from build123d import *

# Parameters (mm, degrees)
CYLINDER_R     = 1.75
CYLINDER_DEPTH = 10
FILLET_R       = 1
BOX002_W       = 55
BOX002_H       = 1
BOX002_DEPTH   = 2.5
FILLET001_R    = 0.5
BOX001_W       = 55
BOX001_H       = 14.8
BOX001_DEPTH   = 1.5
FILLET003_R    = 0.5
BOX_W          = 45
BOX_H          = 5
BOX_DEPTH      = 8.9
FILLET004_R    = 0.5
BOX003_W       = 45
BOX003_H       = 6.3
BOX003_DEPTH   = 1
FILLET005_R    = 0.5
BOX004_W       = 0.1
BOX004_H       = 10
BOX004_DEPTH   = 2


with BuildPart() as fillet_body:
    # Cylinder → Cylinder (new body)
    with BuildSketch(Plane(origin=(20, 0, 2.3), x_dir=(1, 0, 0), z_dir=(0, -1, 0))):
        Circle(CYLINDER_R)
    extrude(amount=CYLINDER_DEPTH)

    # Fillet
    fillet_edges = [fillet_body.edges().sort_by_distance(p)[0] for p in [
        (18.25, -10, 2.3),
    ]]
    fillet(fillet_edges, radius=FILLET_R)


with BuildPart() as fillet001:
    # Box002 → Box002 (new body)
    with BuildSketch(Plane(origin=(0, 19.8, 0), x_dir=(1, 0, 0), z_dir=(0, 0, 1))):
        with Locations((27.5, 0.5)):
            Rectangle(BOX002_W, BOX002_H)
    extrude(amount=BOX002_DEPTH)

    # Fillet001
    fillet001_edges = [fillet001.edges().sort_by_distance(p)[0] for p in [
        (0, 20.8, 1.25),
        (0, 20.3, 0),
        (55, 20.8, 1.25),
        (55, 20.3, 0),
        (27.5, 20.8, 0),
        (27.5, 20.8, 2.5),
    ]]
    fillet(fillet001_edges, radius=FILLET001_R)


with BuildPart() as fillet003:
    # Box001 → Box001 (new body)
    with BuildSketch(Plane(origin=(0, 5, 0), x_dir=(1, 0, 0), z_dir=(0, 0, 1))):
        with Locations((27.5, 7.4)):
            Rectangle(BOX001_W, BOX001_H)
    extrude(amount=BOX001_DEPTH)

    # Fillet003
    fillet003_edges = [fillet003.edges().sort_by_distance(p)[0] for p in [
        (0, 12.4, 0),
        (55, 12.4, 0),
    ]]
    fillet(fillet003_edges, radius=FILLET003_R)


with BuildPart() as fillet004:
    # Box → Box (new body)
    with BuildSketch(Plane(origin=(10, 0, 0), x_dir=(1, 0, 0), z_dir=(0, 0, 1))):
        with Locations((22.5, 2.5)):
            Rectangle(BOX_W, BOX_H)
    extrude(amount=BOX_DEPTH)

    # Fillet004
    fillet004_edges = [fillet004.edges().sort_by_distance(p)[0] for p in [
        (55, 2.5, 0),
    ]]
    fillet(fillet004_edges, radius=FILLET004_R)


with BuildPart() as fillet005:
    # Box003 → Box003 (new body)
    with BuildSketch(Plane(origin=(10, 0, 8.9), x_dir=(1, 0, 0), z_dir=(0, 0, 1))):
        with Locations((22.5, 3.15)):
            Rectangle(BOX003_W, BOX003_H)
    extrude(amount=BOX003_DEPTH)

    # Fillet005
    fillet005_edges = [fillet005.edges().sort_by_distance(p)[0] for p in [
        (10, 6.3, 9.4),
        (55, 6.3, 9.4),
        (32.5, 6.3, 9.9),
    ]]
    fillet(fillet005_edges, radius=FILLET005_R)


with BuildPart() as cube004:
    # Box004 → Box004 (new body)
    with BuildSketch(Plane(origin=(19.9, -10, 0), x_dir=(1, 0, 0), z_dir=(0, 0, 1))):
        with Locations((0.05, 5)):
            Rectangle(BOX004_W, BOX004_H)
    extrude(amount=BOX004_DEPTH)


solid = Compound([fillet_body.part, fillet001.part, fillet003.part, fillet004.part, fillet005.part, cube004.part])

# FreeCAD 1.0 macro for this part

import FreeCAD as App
import Part
import Sketcher
from FreeCAD import Vector
Q = App.Units.Quantity


def edges_at(feature, points):
    """Names of the edges that pass closest to the given points."""
    edges = feature.Shape.Edges
    near = lambda p: min(range(len(edges)), key=lambda i: edges[i].distToShape(Part.Vertex(*p))[0])
    return sorted({f"Edge{near(p) + 1}" for p in points})

doc = App.newDocument("Part")
body = doc.addObject("PartDesign::Body", "Body")

sketch1 = doc.addObject("Sketcher::SketchObject", "Sketch")
body.addObject(sketch1)
sketch1.AttachmentSupport = (doc.XZ_Plane, [""])
sketch1.MapMode = "FlatFace"
sketch1.addGeometry(Part.Circle(Vector(20, 2.3, 0), Vector(0, 0, 1), 1.8), False)
sketch1.addConstraint([
    Sketcher.Constraint("Diameter", 0, Q("3.5 mm")),
    Sketcher.Constraint("DistanceX", -1, 1, 0, 3, Q("20 mm")),
    Sketcher.Constraint("DistanceY", -1, 1, 0, 3, Q("2.3 mm")),
])
pad1 = doc.addObject("PartDesign::Pad", "Pad")
body.addObject(pad1)
pad1.Profile = sketch1
pad1.Length = 10
doc.recompute()

fillet = doc.addObject("PartDesign::Fillet", "Fillet")
body.addObject(fillet)
fillet.Base = (pad1, edges_at(pad1, [(18.25, -10, 2.3)]))
fillet.Radius = 1
body2 = doc.addObject("PartDesign::Body", "Body001")

sketch2 = doc.addObject("Sketcher::SketchObject", "Sketch001")
body2.addObject(sketch2)
sketch2.AttachmentSupport = (doc.getObject("XY_Plane001"), [""])
sketch2.MapMode = "FlatFace"
sketch2.addGeometry([
    Part.LineSegment(Vector(0, 20.8, 0), Vector(0, 19.8, 0)),
    Part.LineSegment(Vector(0, 19.8, 0), Vector(55, 19.8, 0)),
    Part.LineSegment(Vector(55, 19.8, 0), Vector(55, 20.8, 0)),
    Part.LineSegment(Vector(55, 20.8, 0), Vector(0, 20.8, 0)),
], False)
sketch2.addConstraint([
    Sketcher.Constraint("Coincident", 0, 2, 1, 1),
    Sketcher.Constraint("Coincident", 1, 2, 2, 1),
    Sketcher.Constraint("Coincident", 2, 2, 3, 1),
    Sketcher.Constraint("Coincident", 3, 2, 0, 1),
    Sketcher.Constraint("Vertical", 0),
    Sketcher.Constraint("Horizontal", 1),
    Sketcher.Constraint("Vertical", 2),
    Sketcher.Constraint("Horizontal", 3),
    Sketcher.Constraint("PointOnObject", 0, 2, -2),
    Sketcher.Constraint("DistanceX", 1, 1, 1, 2, Q("55 mm")),
    Sketcher.Constraint("DistanceY", 0, 2, 0, 1, Q("1 mm")),
    Sketcher.Constraint("DistanceY", -1, 1, 0, 2, Q("19.8 mm")),
])
pad2 = doc.addObject("PartDesign::Pad", "Pad001")
body2.addObject(pad2)
pad2.Profile = sketch2
pad2.Length = 2.5
doc.recompute()

fillet2 = doc.addObject("PartDesign::Fillet", "Fillet001")
body2.addObject(fillet2)
fillet2.Base = (pad2, edges_at(pad2, [
    (0, 20.8, 1.25),
    (0, 20.3, 0),
    (55, 20.8, 1.25),
    (55, 20.3, 0),
    (27.5, 20.8, 0),
    (27.5, 20.8, 2.5),
]))
fillet2.Radius = 0.5
body3 = doc.addObject("PartDesign::Body", "Body002")

sketch3 = doc.addObject("Sketcher::SketchObject", "Sketch002")
body3.addObject(sketch3)
sketch3.AttachmentSupport = (doc.getObject("XY_Plane002"), [""])
sketch3.MapMode = "FlatFace"
sketch3.addGeometry([
    Part.LineSegment(Vector(0, 20, 0), Vector(0, 5, 0)),
    Part.LineSegment(Vector(0, 5, 0), Vector(55, 5, 0)),
    Part.LineSegment(Vector(55, 5, 0), Vector(55, 20, 0)),
    Part.LineSegment(Vector(55, 20, 0), Vector(0, 20, 0)),
], False)
sketch3.addConstraint([
    Sketcher.Constraint("Coincident", 0, 2, 1, 1),
    Sketcher.Constraint("Coincident", 1, 2, 2, 1),
    Sketcher.Constraint("Coincident", 2, 2, 3, 1),
    Sketcher.Constraint("Coincident", 3, 2, 0, 1),
    Sketcher.Constraint("Vertical", 0),
    Sketcher.Constraint("Horizontal", 1),
    Sketcher.Constraint("Vertical", 2),
    Sketcher.Constraint("Horizontal", 3),
    Sketcher.Constraint("PointOnObject", 0, 2, -2),
    Sketcher.Constraint("DistanceX", 1, 1, 1, 2, Q("55 mm")),
    Sketcher.Constraint("DistanceY", 0, 2, 0, 1, Q("14.8 mm")),
    Sketcher.Constraint("DistanceY", -1, 1, 0, 2, Q("5 mm")),
])
pad3 = doc.addObject("PartDesign::Pad", "Pad002")
body3.addObject(pad3)
pad3.Profile = sketch3
pad3.Length = 1.5
doc.recompute()

fillet3 = doc.addObject("PartDesign::Fillet", "Fillet002")
body3.addObject(fillet3)
fillet3.Base = (pad3, edges_at(pad3, [(0, 12.4, 0), (55, 12.4, 0)]))
fillet3.Radius = 0.5
body4 = doc.addObject("PartDesign::Body", "Body003")

sketch4 = doc.addObject("Sketcher::SketchObject", "Sketch003")
body4.addObject(sketch4)
sketch4.AttachmentSupport = (doc.getObject("XY_Plane003"), [""])
sketch4.MapMode = "FlatFace"
sketch4.addGeometry([
    Part.LineSegment(Vector(10, 5, 0), Vector(10, 0, 0)),
    Part.LineSegment(Vector(10, 0, 0), Vector(55, 0, 0)),
    Part.LineSegment(Vector(55, 0, 0), Vector(55, 5, 0)),
    Part.LineSegment(Vector(55, 5, 0), Vector(10, 5, 0)),
], False)
sketch4.addConstraint([
    Sketcher.Constraint("Coincident", 0, 2, 1, 1),
    Sketcher.Constraint("Coincident", 1, 2, 2, 1),
    Sketcher.Constraint("Coincident", 2, 2, 3, 1),
    Sketcher.Constraint("Coincident", 3, 2, 0, 1),
    Sketcher.Constraint("Vertical", 0),
    Sketcher.Constraint("Horizontal", 1),
    Sketcher.Constraint("Vertical", 2),
    Sketcher.Constraint("Horizontal", 3),
    Sketcher.Constraint("PointOnObject", 0, 2, -1),
    Sketcher.Constraint("DistanceX", 1, 1, 1, 2, Q("45 mm")),
    Sketcher.Constraint("DistanceY", 0, 2, 0, 1, Q("5 mm")),
    Sketcher.Constraint("DistanceX", -1, 1, 0, 2, Q("10 mm")),
])
pad4 = doc.addObject("PartDesign::Pad", "Pad003")
body4.addObject(pad4)
pad4.Profile = sketch4
pad4.Length = 8.9
doc.recompute()

fillet4 = doc.addObject("PartDesign::Fillet", "Fillet003")
body4.addObject(fillet4)
fillet4.Base = (pad4, edges_at(pad4, [(55, 2.5, 0)]))
fillet4.Radius = 0.5
body5 = doc.addObject("PartDesign::Body", "Body004")

sketch5 = doc.addObject("Sketcher::SketchObject", "Sketch004")
body5.addObject(sketch5)
sketch5.AttachmentSupport = (doc.getObject("XY_Plane004"), [""])
sketch5.MapMode = "FlatFace"
sketch5.AttachmentOffset = App.Placement(Vector(0, 0, 8.9), App.Rotation())
sketch5.addGeometry([
    Part.LineSegment(Vector(10, 6, 0), Vector(10, 0, 0)),
    Part.LineSegment(Vector(10, 0, 0), Vector(55, 0, 0)),
    Part.LineSegment(Vector(55, 0, 0), Vector(55, 6, 0)),
    Part.LineSegment(Vector(55, 6, 0), Vector(10, 6, 0)),
], False)
sketch5.addConstraint([
    Sketcher.Constraint("Coincident", 0, 2, 1, 1),
    Sketcher.Constraint("Coincident", 1, 2, 2, 1),
    Sketcher.Constraint("Coincident", 2, 2, 3, 1),
    Sketcher.Constraint("Coincident", 3, 2, 0, 1),
    Sketcher.Constraint("Vertical", 0),
    Sketcher.Constraint("Horizontal", 1),
    Sketcher.Constraint("Vertical", 2),
    Sketcher.Constraint("Horizontal", 3),
    Sketcher.Constraint("PointOnObject", 0, 2, -1),
    Sketcher.Constraint("DistanceX", 1, 1, 1, 2, Q("45 mm")),
    Sketcher.Constraint("DistanceY", 0, 2, 0, 1, Q("6.3 mm")),
    Sketcher.Constraint("DistanceX", -1, 1, 0, 2, Q("10 mm")),
])
pad5 = doc.addObject("PartDesign::Pad", "Pad004")
body5.addObject(pad5)
pad5.Profile = sketch5
pad5.Length = 1
doc.recompute()

fillet5 = doc.addObject("PartDesign::Fillet", "Fillet004")
body5.addObject(fillet5)
fillet5.Base = (pad5, edges_at(pad5, [(10, 6.3, 9.4), (55, 6.3, 9.4), (32.5, 6.3, 9.9)]))
fillet5.Radius = 0.5
body6 = doc.addObject("PartDesign::Body", "Body005")

sketch6 = doc.addObject("Sketcher::SketchObject", "Sketch005")
body6.addObject(sketch6)
sketch6.AttachmentSupport = (doc.getObject("XY_Plane005"), [""])
sketch6.MapMode = "FlatFace"
sketch6.addGeometry([
    Part.LineSegment(Vector(19.9, 0, 0), Vector(19.9, -10, 0)),
    Part.LineSegment(Vector(19.9, -10, 0), Vector(20, -10, 0)),
    Part.LineSegment(Vector(20, -10, 0), Vector(20, 0, 0)),
    Part.LineSegment(Vector(20, 0, 0), Vector(19.9, 0, 0)),
], False)
sketch6.addConstraint([
    Sketcher.Constraint("Coincident", 0, 2, 1, 1),
    Sketcher.Constraint("Coincident", 1, 2, 2, 1),
    Sketcher.Constraint("Coincident", 2, 2, 3, 1),
    Sketcher.Constraint("Coincident", 3, 2, 0, 1),
    Sketcher.Constraint("Vertical", 0),
    Sketcher.Constraint("Horizontal", 1),
    Sketcher.Constraint("Vertical", 2),
    Sketcher.Constraint("Horizontal", 3),
    Sketcher.Constraint("PointOnObject", 2, 2, -1),
    Sketcher.Constraint("DistanceY", 0, 2, 0, 1, Q("10 mm")),
    Sketcher.Constraint("DistanceX", 1, 1, 1, 2, Q("0.1 mm")),
    Sketcher.Constraint("DistanceX", -1, 1, 1, 2, Q("20 mm")),
])
pad6 = doc.addObject("PartDesign::Pad", "Pad005")
body6.addObject(pad6)
pad6.Profile = sketch6
pad6.Length = 2

doc.recompute()
